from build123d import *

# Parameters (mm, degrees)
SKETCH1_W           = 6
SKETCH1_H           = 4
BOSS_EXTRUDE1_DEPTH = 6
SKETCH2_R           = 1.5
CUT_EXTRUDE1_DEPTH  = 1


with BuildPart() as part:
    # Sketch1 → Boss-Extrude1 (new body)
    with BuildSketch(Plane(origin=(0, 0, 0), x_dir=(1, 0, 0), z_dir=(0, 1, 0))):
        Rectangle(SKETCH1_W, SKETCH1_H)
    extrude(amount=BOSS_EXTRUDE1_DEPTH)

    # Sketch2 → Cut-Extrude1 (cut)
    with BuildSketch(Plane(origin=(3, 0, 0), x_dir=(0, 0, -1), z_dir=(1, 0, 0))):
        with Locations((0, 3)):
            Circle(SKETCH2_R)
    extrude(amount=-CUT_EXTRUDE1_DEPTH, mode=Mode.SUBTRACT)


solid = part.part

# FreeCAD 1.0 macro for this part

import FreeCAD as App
import Part
import Sketcher
from FreeCAD import Vector
Q = App.Units.Quantity


def add_polygon(sketch, points):
    """Adds a closed chain of lines whose ends are joined by coincident constraints."""
    first, n = sketch.GeometryCount, len(points)
    for a, b in zip(points, points[1:] + points[:1]):
        sketch.addGeometry(Part.LineSegment(App.Vector(*a, 0), App.Vector(*b, 0)), False)
    for i in range(n):
        sketch.addConstraint(Sketcher.Constraint("Coincident", first + i, 2, first + (i + 1) % n, 1))

doc = App.newDocument("Part")
params = doc.addObject("Spreadsheet::Sheet", "Params")
for row, (alias, value) in enumerate([
    ("sketch1_width", "6 mm"),
    ("sketch1_height", "4 mm"),
    ("pad1_length", "6 mm"),
    ("sketch2_diameter", "3 mm"),
    ("pocket1_length", "1 mm"),
], start=1):
    params.set(f"A{row}", alias)
    params.set(f"B{row}", "=" + value)
    params.setAlias(f"B{row}", alias)

body = doc.addObject("PartDesign::Body", "Body")

sketch1 = doc.addObject("Sketcher::SketchObject", "Sketch")
body.addObject(sketch1)
sketch1.AttachmentSupport = (doc.XZ_Plane, [""])
sketch1.MapMode = "FlatFace"
add_polygon(sketch1, [(-3, -2), (-3, 2), (3, 2), (3, -2)])
sketch1.addConstraint([
    Sketcher.Constraint("Vertical", 0),
    Sketcher.Constraint("Horizontal", 1),
    Sketcher.Constraint("Vertical", 2),
    Sketcher.Constraint("Horizontal", 3),
    Sketcher.Constraint("Symmetric", 0, 2, 2, 2, -1, 1),
    Sketcher.Constraint("DistanceX", 1, 1, 1, 2, Q("6 mm")),
    Sketcher.Constraint("DistanceY", 0, 1, 0, 2, Q("4 mm")),
])
sketch1.setExpression("Constraints[9]", "Params.sketch1_width")
sketch1.setExpression("Constraints[10]", "Params.sketch1_height")
pad1 = doc.addObject("PartDesign::Pad", "Pad")
body.addObject(pad1)
pad1.Profile = sketch1
pad1.setExpression("Length", "Params.pad1_length")
pad1.Reversed = True

sketch2 = doc.addObject("Sketcher::SketchObject", "Sketch001")
body.addObject(sketch2)
sketch2.AttachmentSupport = (doc.YZ_Plane, [""])
sketch2.MapMode = "FlatFace"
sketch2.AttachmentOffset = App.Placement(Vector(0, 0, 3), App.Rotation())
sketch2.addGeometry(Part.Circle(Vector(3, 0, 0), Vector(0, 0, 1), 1.5), False)
sketch2.addConstraint([
    Sketcher.Constraint("PointOnObject", 0, 3, -1),
    Sketcher.Constraint("Diameter", 0, Q("3 mm")),
    Sketcher.Constraint("DistanceX", -1, 1, 0, 3, Q("3 mm")),
])
sketch2.setExpression("Constraints[1]", "Params.sketch2_diameter")
pocket1 = doc.addObject("PartDesign::Pocket", "Pocket")
body.addObject(pocket1)
pocket1.Profile = sketch2
pocket1.setExpression("Length", "Params.pocket1_length")

doc.recompute()
